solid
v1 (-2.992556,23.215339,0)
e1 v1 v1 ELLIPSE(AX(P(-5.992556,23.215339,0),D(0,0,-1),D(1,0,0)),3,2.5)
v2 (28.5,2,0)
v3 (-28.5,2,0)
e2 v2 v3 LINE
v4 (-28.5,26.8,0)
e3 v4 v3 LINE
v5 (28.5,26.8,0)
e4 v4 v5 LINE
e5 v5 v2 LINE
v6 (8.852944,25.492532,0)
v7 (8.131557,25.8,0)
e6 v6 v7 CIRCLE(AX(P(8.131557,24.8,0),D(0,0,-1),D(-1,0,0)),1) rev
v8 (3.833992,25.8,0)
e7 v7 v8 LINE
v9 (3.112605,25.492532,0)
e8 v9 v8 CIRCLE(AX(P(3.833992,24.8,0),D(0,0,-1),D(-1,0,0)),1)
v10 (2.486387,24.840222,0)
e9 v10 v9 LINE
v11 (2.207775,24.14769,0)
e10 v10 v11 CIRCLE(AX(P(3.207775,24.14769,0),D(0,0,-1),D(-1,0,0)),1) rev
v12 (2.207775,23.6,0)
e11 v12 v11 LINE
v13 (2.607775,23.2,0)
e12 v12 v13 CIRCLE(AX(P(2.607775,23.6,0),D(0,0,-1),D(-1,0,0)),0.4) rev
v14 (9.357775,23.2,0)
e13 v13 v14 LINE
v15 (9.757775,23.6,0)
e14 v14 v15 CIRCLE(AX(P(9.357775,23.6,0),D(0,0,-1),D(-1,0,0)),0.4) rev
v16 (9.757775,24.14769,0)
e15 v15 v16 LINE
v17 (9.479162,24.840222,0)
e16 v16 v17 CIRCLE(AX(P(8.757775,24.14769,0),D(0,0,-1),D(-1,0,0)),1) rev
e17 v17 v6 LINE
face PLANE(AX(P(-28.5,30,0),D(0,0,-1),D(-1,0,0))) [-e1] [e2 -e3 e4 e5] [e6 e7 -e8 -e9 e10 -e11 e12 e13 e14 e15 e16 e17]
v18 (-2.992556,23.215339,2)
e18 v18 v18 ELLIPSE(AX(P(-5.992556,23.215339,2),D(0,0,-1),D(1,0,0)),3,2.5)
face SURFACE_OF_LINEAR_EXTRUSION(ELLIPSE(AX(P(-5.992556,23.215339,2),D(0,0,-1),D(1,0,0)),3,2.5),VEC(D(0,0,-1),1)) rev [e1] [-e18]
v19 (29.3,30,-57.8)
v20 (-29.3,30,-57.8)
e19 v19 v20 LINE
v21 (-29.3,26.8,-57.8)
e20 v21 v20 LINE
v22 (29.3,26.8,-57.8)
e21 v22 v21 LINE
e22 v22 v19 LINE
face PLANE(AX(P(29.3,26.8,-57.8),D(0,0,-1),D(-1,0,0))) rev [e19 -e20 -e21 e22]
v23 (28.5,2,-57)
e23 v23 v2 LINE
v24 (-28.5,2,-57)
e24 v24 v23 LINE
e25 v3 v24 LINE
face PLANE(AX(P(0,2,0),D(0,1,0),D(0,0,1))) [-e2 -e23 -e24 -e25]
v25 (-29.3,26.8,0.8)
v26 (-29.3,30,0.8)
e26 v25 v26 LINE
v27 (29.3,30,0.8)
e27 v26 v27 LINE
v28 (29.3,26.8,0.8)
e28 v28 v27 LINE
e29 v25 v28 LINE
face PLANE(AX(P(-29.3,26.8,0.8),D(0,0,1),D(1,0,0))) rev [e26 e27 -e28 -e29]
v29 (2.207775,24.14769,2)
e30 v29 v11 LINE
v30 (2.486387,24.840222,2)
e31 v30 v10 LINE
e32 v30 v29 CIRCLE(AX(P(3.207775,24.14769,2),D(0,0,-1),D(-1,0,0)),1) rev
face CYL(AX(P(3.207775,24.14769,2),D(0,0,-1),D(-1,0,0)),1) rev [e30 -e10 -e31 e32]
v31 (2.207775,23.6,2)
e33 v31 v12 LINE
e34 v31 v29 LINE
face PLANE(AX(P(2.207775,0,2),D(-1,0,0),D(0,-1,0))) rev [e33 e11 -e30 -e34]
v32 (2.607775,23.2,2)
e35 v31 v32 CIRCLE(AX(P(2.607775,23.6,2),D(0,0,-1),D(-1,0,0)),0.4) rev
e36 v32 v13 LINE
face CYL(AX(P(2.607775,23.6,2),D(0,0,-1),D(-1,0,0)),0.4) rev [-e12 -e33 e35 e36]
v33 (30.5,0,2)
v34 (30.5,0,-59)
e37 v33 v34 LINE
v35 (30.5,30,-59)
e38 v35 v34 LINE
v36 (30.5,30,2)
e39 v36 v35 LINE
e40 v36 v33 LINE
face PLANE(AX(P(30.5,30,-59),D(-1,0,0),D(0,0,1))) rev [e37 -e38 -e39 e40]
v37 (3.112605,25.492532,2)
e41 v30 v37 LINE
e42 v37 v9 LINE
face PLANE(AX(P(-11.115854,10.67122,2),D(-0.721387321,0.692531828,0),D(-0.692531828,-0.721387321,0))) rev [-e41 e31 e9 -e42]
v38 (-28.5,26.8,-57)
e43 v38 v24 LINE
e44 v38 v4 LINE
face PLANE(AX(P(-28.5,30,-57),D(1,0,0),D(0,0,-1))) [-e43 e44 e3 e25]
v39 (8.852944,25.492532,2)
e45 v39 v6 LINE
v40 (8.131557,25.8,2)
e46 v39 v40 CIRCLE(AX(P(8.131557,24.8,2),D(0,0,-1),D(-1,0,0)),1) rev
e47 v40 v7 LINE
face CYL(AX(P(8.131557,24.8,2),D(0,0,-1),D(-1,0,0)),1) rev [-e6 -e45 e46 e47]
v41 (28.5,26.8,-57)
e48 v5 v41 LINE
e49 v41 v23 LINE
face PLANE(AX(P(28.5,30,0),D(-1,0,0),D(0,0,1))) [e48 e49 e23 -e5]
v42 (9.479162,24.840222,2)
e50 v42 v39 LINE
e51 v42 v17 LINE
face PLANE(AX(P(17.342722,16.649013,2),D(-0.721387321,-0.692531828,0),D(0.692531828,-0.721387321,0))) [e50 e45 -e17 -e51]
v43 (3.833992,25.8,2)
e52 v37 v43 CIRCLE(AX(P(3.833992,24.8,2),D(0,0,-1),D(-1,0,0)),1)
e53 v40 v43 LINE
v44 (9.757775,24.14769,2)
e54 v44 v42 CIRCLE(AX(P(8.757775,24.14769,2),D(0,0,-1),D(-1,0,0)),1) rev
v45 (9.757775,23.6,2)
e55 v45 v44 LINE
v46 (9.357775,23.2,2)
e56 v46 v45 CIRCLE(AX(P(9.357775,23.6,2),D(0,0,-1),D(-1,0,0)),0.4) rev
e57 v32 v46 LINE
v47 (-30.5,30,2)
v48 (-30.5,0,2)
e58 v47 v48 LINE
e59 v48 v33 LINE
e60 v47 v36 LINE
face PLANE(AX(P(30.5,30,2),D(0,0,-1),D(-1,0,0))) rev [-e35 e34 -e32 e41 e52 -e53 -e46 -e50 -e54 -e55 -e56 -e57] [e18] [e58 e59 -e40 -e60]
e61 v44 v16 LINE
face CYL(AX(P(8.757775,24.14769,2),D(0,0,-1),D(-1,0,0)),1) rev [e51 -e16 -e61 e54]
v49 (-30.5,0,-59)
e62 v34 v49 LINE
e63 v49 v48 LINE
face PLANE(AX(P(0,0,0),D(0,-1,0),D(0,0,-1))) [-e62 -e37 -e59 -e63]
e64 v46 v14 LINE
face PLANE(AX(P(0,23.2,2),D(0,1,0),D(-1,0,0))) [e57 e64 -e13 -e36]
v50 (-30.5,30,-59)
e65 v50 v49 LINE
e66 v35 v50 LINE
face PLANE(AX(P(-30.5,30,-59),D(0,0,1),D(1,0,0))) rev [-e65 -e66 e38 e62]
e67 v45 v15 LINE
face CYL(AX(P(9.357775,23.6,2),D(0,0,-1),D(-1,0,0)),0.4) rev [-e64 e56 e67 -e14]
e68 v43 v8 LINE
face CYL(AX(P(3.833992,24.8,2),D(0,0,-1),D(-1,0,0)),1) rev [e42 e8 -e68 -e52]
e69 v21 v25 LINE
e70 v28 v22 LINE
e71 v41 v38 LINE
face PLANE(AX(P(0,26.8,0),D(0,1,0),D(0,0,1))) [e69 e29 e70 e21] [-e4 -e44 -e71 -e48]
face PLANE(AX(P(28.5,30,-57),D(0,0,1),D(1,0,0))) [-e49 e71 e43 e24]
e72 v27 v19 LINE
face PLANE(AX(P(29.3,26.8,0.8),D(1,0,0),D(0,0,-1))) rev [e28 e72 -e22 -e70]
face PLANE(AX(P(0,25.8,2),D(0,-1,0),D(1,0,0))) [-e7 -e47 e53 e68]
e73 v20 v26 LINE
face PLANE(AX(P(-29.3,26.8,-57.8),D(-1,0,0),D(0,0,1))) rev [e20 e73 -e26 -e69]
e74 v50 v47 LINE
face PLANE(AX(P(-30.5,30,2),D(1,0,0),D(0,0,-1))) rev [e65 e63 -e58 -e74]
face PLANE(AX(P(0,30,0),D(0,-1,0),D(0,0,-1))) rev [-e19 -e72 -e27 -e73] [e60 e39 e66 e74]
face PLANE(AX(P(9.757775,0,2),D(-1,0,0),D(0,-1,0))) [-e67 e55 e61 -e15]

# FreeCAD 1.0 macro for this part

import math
import FreeCAD as App
import Part
import Sketcher

doc = App.newDocument("Part")
body = doc.addObject("PartDesign::Body", "Body")

sketch1 = body.newObject("Sketcher::SketchObject", "Sketch")
sketch1.AttachmentSupport = (doc.getObject("XZ_Plane"), [""])
sketch1.MapMode = "FlatFace"
sketch1.addGeometry([
    Part.LineSegment(App.Vector(-30, -59, 0), App.Vector(-30, 2, 0)),
    Part.LineSegment(App.Vector(-30, 2, 0), App.Vector(30, 2, 0)),
    Part.LineSegment(App.Vector(30, 2, 0), App.Vector(30, -59, 0)),
    Part.LineSegment(App.Vector(30, -59, 0), App.Vector(-30, -59, 0)),
    Part.LineSegment(App.Vector(28, 0, 0), App.Vector(-28, 0, 0)),
    Part.LineSegment(App.Vector(-28, 0, 0), App.Vector(-28, -57, 0)),
    Part.LineSegment(App.Vector(-28, -57, 0), App.Vector(28, -57, 0)),
    Part.LineSegment(App.Vector(28, -57, 0), App.Vector(28, 0, 0)),
], False)
sketch1.addConstraint([
    Sketcher.Constraint("Coincident", 0, 2, 1, 1),
    Sketcher.Constraint("Coincident", 1, 2, 2, 1),
    Sketcher.Constraint("Coincident", 2, 2, 3, 1),
    Sketcher.Constraint("Coincident", 3, 2, 0, 1),
    Sketcher.Constraint("Coincident", 4, 2, 5, 1),
    Sketcher.Constraint("Coincident", 5, 2, 6, 1),
    Sketcher.Constraint("Coincident", 6, 2, 7, 1),
    Sketcher.Constraint("Coincident", 7, 2, 4, 1),
    Sketcher.Constraint("Vertical", 0),
    Sketcher.Constraint("Horizontal", 1),
    Sketcher.Constraint("Vertical", 2),
    Sketcher.Constraint("Horizontal", 3),
    Sketcher.Constraint("Horizontal", 4),
    Sketcher.Constraint("Vertical", 5),
    Sketcher.Constraint("Horizontal", 6),
    Sketcher.Constraint("Vertical", 7),
    Sketcher.Constraint("Symmetric", 4, 2, 7, 2, -1, 1),
    Sketcher.Constraint("Equal", 3, 0),
    Sketcher.Constraint("Equal", 6, 5),
    Sketcher.Constraint("DistanceX", 1, 1, 1, 2, 61.0),
    Sketcher.Constraint("DistanceX", 4, 2, 4, 1, 57.0),
    Sketcher.Constraint("DistanceY", -1, 1, 0, 2, 2.0),
    Sketcher.Constraint("DistanceX", 0, 2, 4, 2, 2.0),
])
pad1 = body.newObject("PartDesign::Pad", "Pad")
pad1.Profile = sketch1
pad1.Length = 30
pad1.Reversed = True

sketch2 = body.newObject("Sketcher::SketchObject", "Sketch001")
sketch2.AttachmentSupport = (doc.getObject("XZ_Plane"), [""])
sketch2.MapMode = "FlatFace"
sketch2.AttachmentOffset = App.Placement(App.Vector(0, 0, -30), App.Rotation())
sketch2.addGeometry([
    Part.LineSegment(App.Vector(-29, -58, 0), App.Vector(-29, 1, 0)),
    Part.LineSegment(App.Vector(-29, 1, 0), App.Vector(29, 1, 0)),
    Part.LineSegment(App.Vector(29, 1, 0), App.Vector(29, -58, 0)),
    Part.LineSegment(App.Vector(29, -58, 0), App.Vector(-29, -58, 0)),
], False)
sketch2.addConstraint([
    Sketcher.Constraint("Coincident", 0, 2, 1, 1),
    Sketcher.Constraint("Coincident", 1, 2, 2, 1),
    Sketcher.Constraint("Coincident", 2, 2, 3, 1),
    Sketcher.Constraint("Coincident", 3, 2, 0, 1),
    Sketcher.Constraint("Vertical", 0),
    Sketcher.Constraint("Horizontal", 1),
    Sketcher.Constraint("Vertical", 2),
    Sketcher.Constraint("Horizontal", 3),
    Sketcher.Constraint("Equal", 3, 0),
    Sketcher.Constraint("DistanceX", 1, 1, 1, 2, 58.6),
    Sketcher.Constraint("DistanceX", 0, 2, -1, 1, 29.3),
    Sketcher.Constraint("DistanceY", -1, 1, 0, 2, 0.8),
])
pocket1 = body.newObject("PartDesign::Pocket", "Pocket")
pocket1.Profile = sketch2
pocket1.Length = 3.2
pocket1.Reversed = True

sketch3 = body.newObject("Sketcher::SketchObject", "Sketch002")
sketch3.AttachmentSupport = (doc.getObject("XY_Plane"), [""])
sketch3.MapMode = "FlatFace"
sketch3.addGeometry([
    Part.ArcOfCircle(Part.Circle(App.Vector(8.131557, 24.8, 0), App.Vector(0, 0, 1), 1), math.radians(43.830861), math.radians(90)),
    Part.LineSegment(App.Vector(8.852944, 25.492532, 0), App.Vector(9.479162, 24.840222, 0)),
    Part.ArcOfCircle(Part.Circle(App.Vector(8.757775, 24.14769, 0), App.Vector(0, 0, 1), 1), math.radians(0), math.radians(43.830861)),
    Part.LineSegment(App.Vector(9.757775, 24.14769, 0), App.Vector(9.757775, 23.6, 0)),
    Part.ArcOfCircle(Part.Circle(App.Vector(9.357775, 23.6, 0), App.Vector(0, 0, 1), 0.4), math.radians(-90), math.radians(0)),
    Part.LineSegment(App.Vector(9.357775, 23.2, 0), App.Vector(2.607775, 23.2, 0)),
    Part.ArcOfCircle(Part.Circle(App.Vector(2.607775, 23.6, 0), App.Vector(0, 0, 1), 0.4), math.radians(-180), math.radians(-90)),
    Part.LineSegment(App.Vector(2.207775, 23.6, 0), App.Vector(2.207775, 24.14769, 0)),
    Part.ArcOfCircle(Part.Circle(App.Vector(3.207775, 24.14769, 0), App.Vector(0, 0, 1), 1), math.radians(136.169139), math.radians(180)),
    Part.LineSegment(App.Vector(2.486387, 24.840222, 0), App.Vector(3.112605, 25.492532, 0)),
    Part.ArcOfCircle(Part.Circle(App.Vector(3.833992, 24.8, 0), App.Vector(0, 0, 1), 1), math.radians(90), math.radians(136.169139)),
    Part.LineSegment(App.Vector(3.833992, 25.8, 0), App.Vector(8.131557, 25.8, 0)),
    Part.Ellipse(App.Vector(-2.992556, 23.215339, 0), App.Vector(-5.992556, 25.715339, 0), App.Vector(-5.992556, 23.215339, 0)),
], False)
sketch3.addConstraint([
    Sketcher.Constraint("Block", 12),
    Sketcher.Constraint("Tangent", 0, 1, 1, 1),
    Sketcher.Constraint("Tangent", 1, 2, 2, 2),
    Sketcher.Constraint("Tangent", 2, 1, 3, 1),
    Sketcher.Constraint("Tangent", 3, 2, 4, 2),
    Sketcher.Constraint("Tangent", 4, 1, 5, 1),
    Sketcher.Constraint("Tangent", 5, 2, 6, 2),
    Sketcher.Constraint("Tangent", 6, 1, 7, 1),
    Sketcher.Constraint("Tangent", 7, 2, 8, 2),
    Sketcher.Constraint("Tangent", 8, 1, 9, 1),
    Sketcher.Constraint("Tangent", 9, 2, 10, 2),
    Sketcher.Constraint("Tangent", 10, 1, 11, 1),
    Sketcher.Constraint("Tangent", 11, 2, 0, 2),
    Sketcher.Constraint("Vertical", 3),
    Sketcher.Constraint("Horizontal", 5),
    Sketcher.Constraint("Vertical", 7),
    Sketcher.Constraint("Horizontal", 11),
    Sketcher.Constraint("Equal", 0, 2),
    Sketcher.Constraint("Equal", 4, 6),
    Sketcher.Constraint("Equal", 2, 8),
    Sketcher.Constraint("Equal", 8, 10),
    Sketcher.Constraint("Horizontal", 2, 3, 8, 3),
    Sketcher.Constraint("Horizontal", 1, 2, 8, 1),
    Sketcher.Constraint("Radius", 0, 1.0),
    Sketcher.Constraint("Radius", 4, 0.4),
    Sketcher.Constraint("DistanceX", 5, 2, 5, 1, 6.75),
    Sketcher.Constraint("DistanceY", -1, 1, 0, 3, 24.8),
    Sketcher.Constraint("DistanceY", -1, 1, 4, 3, 23.6),
    Sketcher.Constraint("DistanceY", 3, 2, 3, 1, 0.54769),
    Sketcher.Constraint("DistanceX", 11, 1, 11, 2, 4.297564),
    Sketcher.Constraint("DistanceX", -1, 1, 1, 2, 9.479162),
])
pocket2 = body.newObject("PartDesign::Pocket", "Pocket001")
pocket2.Profile = sketch3
pocket2.Type = "ThroughAll"
pocket2.Reversed = True

sketch4 = body.newObject("Sketcher::SketchObject", "Sketch003")
sketch4.AttachmentSupport = (doc.getObject("XZ_Plane"), [""])
sketch4.MapMode = "FlatFace"
sketch4.addGeometry([
    Part.LineSegment(App.Vector(-28, 0, 0), App.Vector(-28, -57, 0)),
    Part.LineSegment(App.Vector(-28, -57, 0), App.Vector(28, -57, 0)),
    Part.LineSegment(App.Vector(28, -57, 0), App.Vector(28, 0, 0)),
    Part.LineSegment(App.Vector(28, 0, 0), App.Vector(-28, 0, 0)),
], False)
sketch4.addConstraint([
    Sketcher.Constraint("Coincident", 0, 2, 1, 1),
    Sketcher.Constraint("Coincident", 1, 2, 2, 1),
    Sketcher.Constraint("Coincident", 2, 2, 3, 1),
    Sketcher.Constraint("Coincident", 3, 2, 0, 1),
    Sketcher.Constraint("Vertical", 0),
    Sketcher.Constraint("Horizontal", 1),
    Sketcher.Constraint("Vertical", 2),
    Sketcher.Constraint("Horizontal", 3),
    Sketcher.Constraint("Symmetric", 2, 2, 3, 2, -1, 1),
    Sketcher.Constraint("Equal", 3, 0),
    Sketcher.Constraint("DistanceX", 1, 1, 1, 2, 57.0),
])
pad2 = body.newObject("PartDesign::Pad", "Pad001")
pad2.Profile = sketch4
pad2.Length = 2
pad2.Reversed = True

doc.recompute()
